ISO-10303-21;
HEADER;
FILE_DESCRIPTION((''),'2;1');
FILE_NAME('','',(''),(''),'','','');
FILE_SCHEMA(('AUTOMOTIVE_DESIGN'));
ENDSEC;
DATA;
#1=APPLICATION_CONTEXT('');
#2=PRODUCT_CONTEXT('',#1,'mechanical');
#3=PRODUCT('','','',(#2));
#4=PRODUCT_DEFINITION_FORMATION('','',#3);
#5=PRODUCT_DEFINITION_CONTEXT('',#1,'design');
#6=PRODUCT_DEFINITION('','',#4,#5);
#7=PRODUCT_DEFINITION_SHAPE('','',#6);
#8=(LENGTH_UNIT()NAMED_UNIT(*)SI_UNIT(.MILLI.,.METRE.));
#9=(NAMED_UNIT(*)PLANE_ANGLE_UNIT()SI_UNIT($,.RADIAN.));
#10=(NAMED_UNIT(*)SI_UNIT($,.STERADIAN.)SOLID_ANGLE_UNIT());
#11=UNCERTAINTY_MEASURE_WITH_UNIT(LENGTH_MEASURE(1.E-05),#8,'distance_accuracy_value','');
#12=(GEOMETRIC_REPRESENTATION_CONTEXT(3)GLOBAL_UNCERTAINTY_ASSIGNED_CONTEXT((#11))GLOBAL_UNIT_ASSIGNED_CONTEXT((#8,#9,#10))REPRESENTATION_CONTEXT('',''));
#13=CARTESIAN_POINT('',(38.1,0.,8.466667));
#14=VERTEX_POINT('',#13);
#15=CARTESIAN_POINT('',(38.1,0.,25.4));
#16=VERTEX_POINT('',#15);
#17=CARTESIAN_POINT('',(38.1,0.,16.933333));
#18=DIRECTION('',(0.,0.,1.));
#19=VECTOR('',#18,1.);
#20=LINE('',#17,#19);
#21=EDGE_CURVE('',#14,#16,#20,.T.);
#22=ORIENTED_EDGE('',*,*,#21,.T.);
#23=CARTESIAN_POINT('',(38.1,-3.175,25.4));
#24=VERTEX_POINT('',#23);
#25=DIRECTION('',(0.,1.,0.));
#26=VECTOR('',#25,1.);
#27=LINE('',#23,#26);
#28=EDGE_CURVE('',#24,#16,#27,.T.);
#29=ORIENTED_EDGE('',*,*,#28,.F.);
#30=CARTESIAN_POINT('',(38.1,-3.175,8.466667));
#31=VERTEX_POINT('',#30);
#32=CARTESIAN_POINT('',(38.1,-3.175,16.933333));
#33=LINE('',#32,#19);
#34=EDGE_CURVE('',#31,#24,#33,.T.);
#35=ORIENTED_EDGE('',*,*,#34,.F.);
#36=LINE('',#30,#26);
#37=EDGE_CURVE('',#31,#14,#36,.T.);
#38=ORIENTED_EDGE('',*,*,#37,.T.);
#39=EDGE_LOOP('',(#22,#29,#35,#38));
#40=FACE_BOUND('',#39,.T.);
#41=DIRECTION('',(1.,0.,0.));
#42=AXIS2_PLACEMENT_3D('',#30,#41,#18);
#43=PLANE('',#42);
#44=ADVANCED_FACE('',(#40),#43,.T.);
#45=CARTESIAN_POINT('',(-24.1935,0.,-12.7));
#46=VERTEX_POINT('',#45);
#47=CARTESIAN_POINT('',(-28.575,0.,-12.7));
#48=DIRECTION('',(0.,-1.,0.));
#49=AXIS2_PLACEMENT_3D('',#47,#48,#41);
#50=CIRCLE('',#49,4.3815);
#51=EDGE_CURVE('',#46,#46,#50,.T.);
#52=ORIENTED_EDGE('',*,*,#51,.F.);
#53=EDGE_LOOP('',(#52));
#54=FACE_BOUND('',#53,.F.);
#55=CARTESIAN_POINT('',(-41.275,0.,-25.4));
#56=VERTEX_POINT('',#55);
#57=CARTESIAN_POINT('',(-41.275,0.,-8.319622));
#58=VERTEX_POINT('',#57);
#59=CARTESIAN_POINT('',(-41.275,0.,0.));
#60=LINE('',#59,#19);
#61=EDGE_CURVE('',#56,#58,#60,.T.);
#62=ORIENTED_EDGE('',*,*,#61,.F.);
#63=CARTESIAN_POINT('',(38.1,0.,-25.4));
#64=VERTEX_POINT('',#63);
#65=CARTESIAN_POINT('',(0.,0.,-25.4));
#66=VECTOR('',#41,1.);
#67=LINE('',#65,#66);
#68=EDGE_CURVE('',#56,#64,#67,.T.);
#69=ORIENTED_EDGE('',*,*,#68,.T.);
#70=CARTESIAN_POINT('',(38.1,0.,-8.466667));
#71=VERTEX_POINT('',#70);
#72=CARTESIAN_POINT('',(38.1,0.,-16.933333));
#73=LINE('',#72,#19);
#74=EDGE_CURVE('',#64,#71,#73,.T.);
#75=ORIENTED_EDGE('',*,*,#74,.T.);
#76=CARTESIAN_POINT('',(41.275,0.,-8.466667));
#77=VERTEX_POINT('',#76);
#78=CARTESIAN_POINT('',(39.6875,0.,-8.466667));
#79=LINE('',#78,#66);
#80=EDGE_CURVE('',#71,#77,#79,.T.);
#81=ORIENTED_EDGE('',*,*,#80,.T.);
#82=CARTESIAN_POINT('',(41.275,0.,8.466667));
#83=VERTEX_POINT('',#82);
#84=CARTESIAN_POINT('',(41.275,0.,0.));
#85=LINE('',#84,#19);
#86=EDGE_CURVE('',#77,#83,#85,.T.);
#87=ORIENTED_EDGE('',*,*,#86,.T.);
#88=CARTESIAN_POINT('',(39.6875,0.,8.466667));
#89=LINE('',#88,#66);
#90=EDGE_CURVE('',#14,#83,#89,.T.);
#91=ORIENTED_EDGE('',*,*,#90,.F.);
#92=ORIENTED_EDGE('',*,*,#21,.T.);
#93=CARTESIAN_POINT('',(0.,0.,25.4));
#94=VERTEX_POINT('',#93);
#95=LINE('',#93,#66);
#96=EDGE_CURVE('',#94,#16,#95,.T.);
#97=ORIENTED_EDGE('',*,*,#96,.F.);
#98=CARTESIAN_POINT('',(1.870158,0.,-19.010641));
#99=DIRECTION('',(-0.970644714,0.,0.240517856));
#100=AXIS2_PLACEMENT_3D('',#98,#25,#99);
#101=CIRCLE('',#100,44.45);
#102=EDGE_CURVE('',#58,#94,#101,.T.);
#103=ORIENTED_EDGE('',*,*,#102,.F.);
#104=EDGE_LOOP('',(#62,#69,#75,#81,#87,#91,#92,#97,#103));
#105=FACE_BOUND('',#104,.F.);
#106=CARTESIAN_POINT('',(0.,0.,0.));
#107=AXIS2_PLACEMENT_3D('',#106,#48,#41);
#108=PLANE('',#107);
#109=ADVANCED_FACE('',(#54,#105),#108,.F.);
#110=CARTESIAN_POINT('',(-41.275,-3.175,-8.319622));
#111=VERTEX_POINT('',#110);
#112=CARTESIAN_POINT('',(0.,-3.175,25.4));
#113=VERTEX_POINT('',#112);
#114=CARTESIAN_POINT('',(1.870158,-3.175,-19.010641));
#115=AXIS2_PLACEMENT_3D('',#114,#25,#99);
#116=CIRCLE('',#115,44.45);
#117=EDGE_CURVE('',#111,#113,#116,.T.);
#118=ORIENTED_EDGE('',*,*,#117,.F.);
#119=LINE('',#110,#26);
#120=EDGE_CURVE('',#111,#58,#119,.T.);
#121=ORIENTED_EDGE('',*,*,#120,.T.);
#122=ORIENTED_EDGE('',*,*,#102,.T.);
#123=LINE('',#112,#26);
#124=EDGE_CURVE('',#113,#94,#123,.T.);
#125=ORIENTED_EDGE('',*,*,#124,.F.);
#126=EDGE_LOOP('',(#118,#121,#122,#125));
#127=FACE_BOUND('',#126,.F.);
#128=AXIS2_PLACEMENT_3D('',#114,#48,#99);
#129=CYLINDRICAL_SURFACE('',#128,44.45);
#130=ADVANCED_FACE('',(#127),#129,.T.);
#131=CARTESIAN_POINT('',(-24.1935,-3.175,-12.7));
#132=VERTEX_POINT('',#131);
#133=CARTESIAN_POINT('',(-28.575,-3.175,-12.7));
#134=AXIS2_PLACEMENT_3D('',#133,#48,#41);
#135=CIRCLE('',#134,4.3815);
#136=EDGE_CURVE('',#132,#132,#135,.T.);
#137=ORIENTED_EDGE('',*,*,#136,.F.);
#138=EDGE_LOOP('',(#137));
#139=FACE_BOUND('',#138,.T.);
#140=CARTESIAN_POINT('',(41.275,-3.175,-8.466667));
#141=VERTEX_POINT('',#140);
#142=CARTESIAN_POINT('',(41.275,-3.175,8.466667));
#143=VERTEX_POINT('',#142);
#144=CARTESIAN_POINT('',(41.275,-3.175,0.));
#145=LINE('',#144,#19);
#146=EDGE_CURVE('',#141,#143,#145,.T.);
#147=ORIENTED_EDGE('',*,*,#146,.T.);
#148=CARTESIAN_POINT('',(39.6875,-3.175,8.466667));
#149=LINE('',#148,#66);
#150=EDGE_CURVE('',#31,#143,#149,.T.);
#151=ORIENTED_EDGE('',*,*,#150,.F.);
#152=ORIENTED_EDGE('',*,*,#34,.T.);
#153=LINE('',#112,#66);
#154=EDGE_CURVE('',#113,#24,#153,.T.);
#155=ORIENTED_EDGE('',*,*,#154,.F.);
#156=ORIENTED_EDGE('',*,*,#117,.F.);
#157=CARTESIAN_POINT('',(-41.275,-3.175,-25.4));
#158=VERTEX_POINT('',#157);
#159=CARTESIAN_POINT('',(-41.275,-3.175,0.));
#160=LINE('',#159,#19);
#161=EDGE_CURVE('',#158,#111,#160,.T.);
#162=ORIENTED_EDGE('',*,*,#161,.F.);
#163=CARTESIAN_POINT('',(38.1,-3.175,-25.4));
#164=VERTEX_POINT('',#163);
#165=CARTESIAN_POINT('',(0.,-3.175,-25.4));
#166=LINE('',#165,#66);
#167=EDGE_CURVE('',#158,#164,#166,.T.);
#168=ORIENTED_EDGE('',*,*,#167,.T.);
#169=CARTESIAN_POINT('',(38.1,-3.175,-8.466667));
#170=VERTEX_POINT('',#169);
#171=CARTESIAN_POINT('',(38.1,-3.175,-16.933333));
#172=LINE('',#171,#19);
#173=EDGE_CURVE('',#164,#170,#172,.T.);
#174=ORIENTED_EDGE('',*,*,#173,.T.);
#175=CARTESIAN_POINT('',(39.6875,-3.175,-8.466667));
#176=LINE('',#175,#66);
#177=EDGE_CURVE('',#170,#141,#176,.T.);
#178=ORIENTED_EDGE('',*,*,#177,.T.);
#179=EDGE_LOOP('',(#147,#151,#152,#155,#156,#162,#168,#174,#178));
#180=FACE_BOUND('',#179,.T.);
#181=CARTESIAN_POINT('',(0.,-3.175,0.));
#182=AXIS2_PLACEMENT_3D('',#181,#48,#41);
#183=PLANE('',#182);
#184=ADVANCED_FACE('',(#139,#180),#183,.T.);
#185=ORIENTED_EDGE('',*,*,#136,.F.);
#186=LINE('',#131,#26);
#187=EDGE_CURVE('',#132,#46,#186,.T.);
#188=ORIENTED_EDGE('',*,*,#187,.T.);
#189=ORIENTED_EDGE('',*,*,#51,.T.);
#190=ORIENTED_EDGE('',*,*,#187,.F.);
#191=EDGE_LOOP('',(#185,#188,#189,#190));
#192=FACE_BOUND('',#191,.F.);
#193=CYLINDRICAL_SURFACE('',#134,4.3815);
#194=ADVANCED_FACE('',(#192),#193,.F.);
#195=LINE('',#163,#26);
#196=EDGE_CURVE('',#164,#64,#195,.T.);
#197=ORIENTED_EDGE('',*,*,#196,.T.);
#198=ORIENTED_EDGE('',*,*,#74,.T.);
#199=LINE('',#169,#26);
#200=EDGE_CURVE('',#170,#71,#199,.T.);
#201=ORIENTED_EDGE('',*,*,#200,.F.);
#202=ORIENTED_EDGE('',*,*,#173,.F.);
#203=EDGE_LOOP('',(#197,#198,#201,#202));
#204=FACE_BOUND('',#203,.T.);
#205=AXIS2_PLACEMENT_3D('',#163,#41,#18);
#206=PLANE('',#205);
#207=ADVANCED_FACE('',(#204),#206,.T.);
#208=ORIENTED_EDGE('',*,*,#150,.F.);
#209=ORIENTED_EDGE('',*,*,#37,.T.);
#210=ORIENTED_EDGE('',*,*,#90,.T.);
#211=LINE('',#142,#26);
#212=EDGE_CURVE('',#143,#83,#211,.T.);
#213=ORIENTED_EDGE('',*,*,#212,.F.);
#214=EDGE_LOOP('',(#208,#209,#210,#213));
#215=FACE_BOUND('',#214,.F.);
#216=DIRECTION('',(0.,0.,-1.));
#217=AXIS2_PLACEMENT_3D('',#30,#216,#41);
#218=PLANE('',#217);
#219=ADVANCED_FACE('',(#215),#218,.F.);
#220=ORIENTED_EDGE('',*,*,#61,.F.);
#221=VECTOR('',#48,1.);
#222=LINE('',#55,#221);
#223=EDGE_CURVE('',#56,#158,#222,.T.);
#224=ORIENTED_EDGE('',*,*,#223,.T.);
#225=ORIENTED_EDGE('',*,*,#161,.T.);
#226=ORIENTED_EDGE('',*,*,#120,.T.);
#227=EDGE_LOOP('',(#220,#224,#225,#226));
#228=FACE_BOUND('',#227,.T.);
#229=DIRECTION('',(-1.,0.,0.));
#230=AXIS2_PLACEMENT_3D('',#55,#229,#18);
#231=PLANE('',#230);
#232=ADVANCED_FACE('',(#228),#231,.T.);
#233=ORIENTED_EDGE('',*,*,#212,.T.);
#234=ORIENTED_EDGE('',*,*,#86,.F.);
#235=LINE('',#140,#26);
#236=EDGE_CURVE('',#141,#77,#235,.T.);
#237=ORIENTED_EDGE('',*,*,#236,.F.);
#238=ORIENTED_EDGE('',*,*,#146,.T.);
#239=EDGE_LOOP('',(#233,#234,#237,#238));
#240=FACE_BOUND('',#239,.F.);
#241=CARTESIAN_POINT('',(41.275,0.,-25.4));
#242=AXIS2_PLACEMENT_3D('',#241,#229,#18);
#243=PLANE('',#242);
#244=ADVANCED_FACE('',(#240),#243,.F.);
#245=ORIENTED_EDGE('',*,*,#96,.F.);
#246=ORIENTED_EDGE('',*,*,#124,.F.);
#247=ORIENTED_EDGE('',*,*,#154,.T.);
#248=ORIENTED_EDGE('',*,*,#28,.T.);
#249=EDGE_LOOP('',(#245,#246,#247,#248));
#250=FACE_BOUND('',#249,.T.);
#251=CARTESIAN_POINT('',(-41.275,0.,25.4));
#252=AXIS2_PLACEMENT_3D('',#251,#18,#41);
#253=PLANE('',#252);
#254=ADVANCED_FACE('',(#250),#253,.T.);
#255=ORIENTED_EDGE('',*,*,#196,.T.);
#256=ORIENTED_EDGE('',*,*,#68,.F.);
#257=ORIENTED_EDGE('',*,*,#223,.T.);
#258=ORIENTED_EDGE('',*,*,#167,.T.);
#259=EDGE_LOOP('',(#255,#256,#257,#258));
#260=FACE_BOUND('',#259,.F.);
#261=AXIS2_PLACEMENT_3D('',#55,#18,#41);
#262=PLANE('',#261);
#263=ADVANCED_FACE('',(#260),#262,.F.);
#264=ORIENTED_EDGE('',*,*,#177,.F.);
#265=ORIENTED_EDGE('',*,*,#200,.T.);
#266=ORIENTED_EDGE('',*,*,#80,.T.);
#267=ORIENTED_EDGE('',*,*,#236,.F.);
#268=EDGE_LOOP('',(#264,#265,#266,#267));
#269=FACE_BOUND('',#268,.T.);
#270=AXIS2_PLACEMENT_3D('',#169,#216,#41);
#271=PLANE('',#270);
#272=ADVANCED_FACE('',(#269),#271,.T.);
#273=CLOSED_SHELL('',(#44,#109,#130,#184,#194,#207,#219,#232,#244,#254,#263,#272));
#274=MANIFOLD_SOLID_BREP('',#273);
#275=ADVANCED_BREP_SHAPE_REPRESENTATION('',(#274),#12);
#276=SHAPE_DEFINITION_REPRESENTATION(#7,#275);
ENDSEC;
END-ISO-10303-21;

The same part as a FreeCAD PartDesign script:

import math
import FreeCAD as App
import Part
import Sketcher
Q = App.Units.Quantity

doc = App.newDocument("Part")
body = doc.addObject("PartDesign::Body", "Body")

# Sketch on XZ plane
sketch1 = body.newObject("Sketcher::SketchObject", "Sketch")
sketch1.AttachmentSupport = (doc.getObject("XZ_Plane"), [""])
sketch1.MapMode = "FlatFace"
sketch1.addGeometry([
    Part.LineSegment(App.Vector(-41, 25, 0), App.Vector(-41, -25, 0)),
    Part.LineSegment(App.Vector(-41, -25, 0), App.Vector(41, -25, 0)),
    Part.LineSegment(App.Vector(41, -25, 0), App.Vector(41, 25, 0)),
    Part.LineSegment(App.Vector(41, 25, 0), App.Vector(-41, 25, 0)),
], False)
sketch1.addConstraint([
    Sketcher.Constraint("Coincident", 0, 2, 1, 1),
    Sketcher.Constraint("Coincident", 1, 2, 2, 1),
    Sketcher.Constraint("Coincident", 2, 2, 3, 1),
    Sketcher.Constraint("Coincident", 3, 2, 0, 1),
    Sketcher.Constraint("Vertical", 0),
    Sketcher.Constraint("Horizontal", 1),
    Sketcher.Constraint("Vertical", 2),
    Sketcher.Constraint("Horizontal", 3),
    Sketcher.Constraint("Symmetric", 0, 2, 2, 2, -1, 1),
    Sketcher.Constraint("DistanceY", 0, 2, 0, 1, Q("2 in")),
    Sketcher.Constraint("DistanceX", 1, 1, 1, 2, Q("3.25 in")),
])
pad1 = body.newObject("PartDesign::Pad", "Pad")
pad1.Profile = sketch1
pad1.Length = Q("0.125 in")

# Sketch on XZ plane
sketch2 = body.newObject("Sketcher::SketchObject", "Sketch001")
sketch2.AttachmentSupport = (doc.getObject("XZ_Plane"), [""])
sketch2.MapMode = "FlatFace"
sketch2.AttachmentOffset = App.Placement(App.Vector(0, 0, 0.125 * 25.4), App.Rotation())
sketch2.addGeometry(Part.Circle(App.Vector(-28.6, -12.7, 0), App.Vector(0, 0, 1), 4.4), False)
sketch2.addConstraint([
    Sketcher.Constraint("Diameter", 0, Q("0.345 in")),
    Sketcher.Constraint("DistanceY", 0, 3, -1, 1, Q("0.5 in")),
    Sketcher.Constraint("DistanceX", 0, 3, -1, 1, Q("1.125 in")),
])
pocket1 = body.newObject("PartDesign::Pocket", "Pocket")
pocket1.Profile = sketch2
pocket1.Length = Q("0.125 in")

# Sketch on XZ plane
sketch3 = body.newObject("Sketcher::SketchObject", "Sketch002")
sketch3.AttachmentSupport = (doc.getObject("XZ_Plane"), [""])
sketch3.MapMode = "FlatFace"
sketch3.AttachmentOffset = App.Placement(App.Vector(0, 0, 0.125 * 25.4), App.Rotation())
sketch3.addGeometry([
    Part.ArcOfCircle(Part.Circle(App.Vector(2, -19, 0), App.Vector(0, 0, 1), 44), math.radians(92), math.radians(166)),
    Part.LineSegment(App.Vector(0, 25, 0), App.Vector(-41, 25, 0)),
    Part.LineSegment(App.Vector(-41, 25, 0), App.Vector(-41, -8, 0)),
], False)
sketch3.addConstraint([
    Sketcher.Constraint("Coincident", 0, 1, 1, 1),
    Sketcher.Constraint("Coincident", 1, 2, 2, 1),
    Sketcher.Constraint("Coincident", 2, 2, 0, 2),
    Sketcher.Constraint("Horizontal", 1),
    Sketcher.Constraint("Vertical", 2),
    Sketcher.Constraint("PointOnObject", 0, 1, -2),
    Sketcher.Constraint("Radius", 0, Q("1.75 in")),
    Sketcher.Constraint("DistanceY", -1, 1, 0, 1, Q("1 in")),
    Sketcher.Constraint("DistanceX", 1, 2, 1, 1, Q("1.625 in")),
    Sketcher.Constraint("DistanceY", 2, 2, 2, 1, Q("33.719622 mm")),
])
pocket2 = body.newObject("PartDesign::Pocket", "Pocket001")
pocket2.Profile = sketch3
pocket2.Length = Q("0.125 in")

# Sketch on XZ plane
sketch4 = body.newObject("Sketcher::SketchObject", "Sketch003")
sketch4.AttachmentSupport = (doc.getObject("XZ_Plane"), [""])
sketch4.MapMode = "FlatFace"
sketch4.AttachmentOffset = App.Placement(App.Vector(0, 0, 0.125 * 25.4), App.Rotation())
sketch4.addGeometry([
    Part.LineSegment(App.Vector(38.1, 25.4, 0), App.Vector(38.1, 8.5, 0)),  # 0
    Part.LineSegment(App.Vector(38.1, 8.5, 0), App.Vector(41.3, 8.5, 0)),  # 1
    Part.LineSegment(App.Vector(41.3, 8.5, 0), App.Vector(41.3, 25.4, 0)),  # 2
    Part.LineSegment(App.Vector(41.3, 25.4, 0), App.Vector(38.1, 25.4, 0)),  # 3
    Part.LineSegment(App.Vector(38.1, -8.5, 0), App.Vector(38.1, -25.4, 0)),  # 4
    Part.LineSegment(App.Vector(38.1, -25.4, 0), App.Vector(41.3, -25.4, 0)),  # 5
    Part.LineSegment(App.Vector(41.3, -25.4, 0), App.Vector(41.3, -8.5, 0)),  # 6
    Part.LineSegment(App.Vector(41.3, -8.5, 0), App.Vector(38.1, -8.5, 0)),  # 7
], False)
sketch4.addConstraint([
    Sketcher.Constraint("Coincident", 0, 2, 1, 1),
    Sketcher.Constraint("Coincident", 1, 2, 2, 1),
    Sketcher.Constraint("Coincident", 2, 2, 3, 1),
    Sketcher.Constraint("Coincident", 3, 2, 0, 1),
    Sketcher.Constraint("Coincident", 4, 2, 5, 1),
    Sketcher.Constraint("Coincident", 5, 2, 6, 1),
    Sketcher.Constraint("Coincident", 6, 2, 7, 1),
    Sketcher.Constraint("Coincident", 7, 2, 4, 1),
    Sketcher.Constraint("Vertical", 0),
    Sketcher.Constraint("Horizontal", 1),
    Sketcher.Constraint("Vertical", 2),
    Sketcher.Constraint("Horizontal", 3),
    Sketcher.Constraint("Vertical", 4),
    Sketcher.Constraint("Horizontal", 5),
    Sketcher.Constraint("Vertical", 6),
    Sketcher.Constraint("Horizontal", 7),
    Sketcher.Constraint("Symmetric", 3, 2, 4, 2, -1),
    Sketcher.Constraint("Symmetric", 1, 2, 6, 2, -1),
    Sketcher.Constraint("DistanceY", -1, 1, 2, 2, Q("1 in")),
    Sketcher.Constraint("DistanceX", -1, 1, 0, 2, Q("1.5 in")),
    Sketcher.Constraint("DistanceX", 1, 1, 1, 2, Q("0.125 in")),
    Sketcher.Constraint("DistanceY", 0, 2, 0, 1, Q("16.933333 mm")),
])
pocket3 = body.newObject("PartDesign::Pocket", "Pocket002")
pocket3.Profile = sketch4
pocket3.Length = Q("0.125 in")

doc.recompute()
